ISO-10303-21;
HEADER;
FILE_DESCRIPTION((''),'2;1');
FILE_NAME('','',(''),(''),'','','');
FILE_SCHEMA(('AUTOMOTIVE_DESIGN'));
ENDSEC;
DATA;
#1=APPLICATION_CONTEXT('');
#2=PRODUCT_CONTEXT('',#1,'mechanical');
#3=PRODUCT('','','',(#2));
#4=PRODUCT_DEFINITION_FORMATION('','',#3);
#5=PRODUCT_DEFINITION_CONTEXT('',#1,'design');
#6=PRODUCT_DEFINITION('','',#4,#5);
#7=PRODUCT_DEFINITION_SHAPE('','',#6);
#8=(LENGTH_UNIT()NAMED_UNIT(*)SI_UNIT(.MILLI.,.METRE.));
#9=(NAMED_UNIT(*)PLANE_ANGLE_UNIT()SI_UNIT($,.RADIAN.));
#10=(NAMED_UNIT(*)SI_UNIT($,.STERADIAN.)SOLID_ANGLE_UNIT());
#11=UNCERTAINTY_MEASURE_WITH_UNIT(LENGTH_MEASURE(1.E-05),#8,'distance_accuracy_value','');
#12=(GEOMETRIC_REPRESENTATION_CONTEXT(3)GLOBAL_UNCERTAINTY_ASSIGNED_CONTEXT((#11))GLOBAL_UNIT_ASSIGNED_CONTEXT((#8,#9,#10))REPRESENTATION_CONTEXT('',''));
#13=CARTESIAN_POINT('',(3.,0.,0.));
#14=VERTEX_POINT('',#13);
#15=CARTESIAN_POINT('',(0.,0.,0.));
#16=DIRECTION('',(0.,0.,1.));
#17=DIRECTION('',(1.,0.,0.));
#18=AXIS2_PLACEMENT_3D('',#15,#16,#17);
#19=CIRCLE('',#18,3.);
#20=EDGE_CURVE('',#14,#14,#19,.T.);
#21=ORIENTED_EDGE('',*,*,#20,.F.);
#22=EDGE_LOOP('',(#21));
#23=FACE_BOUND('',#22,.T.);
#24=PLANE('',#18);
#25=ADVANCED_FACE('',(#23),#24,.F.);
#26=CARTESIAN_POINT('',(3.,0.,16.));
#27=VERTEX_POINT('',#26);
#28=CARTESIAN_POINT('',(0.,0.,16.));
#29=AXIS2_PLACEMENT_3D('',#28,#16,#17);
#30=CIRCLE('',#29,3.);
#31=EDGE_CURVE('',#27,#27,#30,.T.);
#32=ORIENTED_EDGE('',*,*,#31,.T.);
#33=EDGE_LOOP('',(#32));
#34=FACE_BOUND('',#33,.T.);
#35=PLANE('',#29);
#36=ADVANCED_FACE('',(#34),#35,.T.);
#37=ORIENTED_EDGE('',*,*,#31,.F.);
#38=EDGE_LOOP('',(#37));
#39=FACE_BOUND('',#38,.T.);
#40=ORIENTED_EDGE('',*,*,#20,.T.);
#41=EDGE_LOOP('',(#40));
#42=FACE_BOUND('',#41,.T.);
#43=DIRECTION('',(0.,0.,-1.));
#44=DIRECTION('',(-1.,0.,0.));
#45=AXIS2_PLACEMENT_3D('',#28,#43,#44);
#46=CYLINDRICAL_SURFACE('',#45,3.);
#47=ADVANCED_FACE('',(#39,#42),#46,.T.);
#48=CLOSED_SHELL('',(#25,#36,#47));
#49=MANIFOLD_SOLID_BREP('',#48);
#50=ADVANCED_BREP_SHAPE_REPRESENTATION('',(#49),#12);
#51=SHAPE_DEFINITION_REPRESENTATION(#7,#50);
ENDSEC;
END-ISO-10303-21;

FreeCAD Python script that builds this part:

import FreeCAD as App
import Part
import Sketcher
from FreeCAD import Vector

doc = App.newDocument("Part")
body = doc.addObject("PartDesign::Body", "Body")

sketch1 = body.newObject("Sketcher::SketchObject", "Sketch")
sketch1.AttachmentSupport = (doc.getObject("XY_Plane"), [""])
sketch1.MapMode = "FlatFace"
sketch1.addGeometry(Part.Circle(Vector(0, 0, 0), Vector(0, 0, 1), 3), False)
sketch1.addConstraint([
    Sketcher.Constraint("Coincident", 0, 3, -1, 1),
    Sketcher.Constraint("Diameter", 0, 6.0),
])
pad1 = body.newObject("PartDesign::Pad", "Pad")
pad1.Profile = sketch1
pad1.Length = 16

doc.recompute()
